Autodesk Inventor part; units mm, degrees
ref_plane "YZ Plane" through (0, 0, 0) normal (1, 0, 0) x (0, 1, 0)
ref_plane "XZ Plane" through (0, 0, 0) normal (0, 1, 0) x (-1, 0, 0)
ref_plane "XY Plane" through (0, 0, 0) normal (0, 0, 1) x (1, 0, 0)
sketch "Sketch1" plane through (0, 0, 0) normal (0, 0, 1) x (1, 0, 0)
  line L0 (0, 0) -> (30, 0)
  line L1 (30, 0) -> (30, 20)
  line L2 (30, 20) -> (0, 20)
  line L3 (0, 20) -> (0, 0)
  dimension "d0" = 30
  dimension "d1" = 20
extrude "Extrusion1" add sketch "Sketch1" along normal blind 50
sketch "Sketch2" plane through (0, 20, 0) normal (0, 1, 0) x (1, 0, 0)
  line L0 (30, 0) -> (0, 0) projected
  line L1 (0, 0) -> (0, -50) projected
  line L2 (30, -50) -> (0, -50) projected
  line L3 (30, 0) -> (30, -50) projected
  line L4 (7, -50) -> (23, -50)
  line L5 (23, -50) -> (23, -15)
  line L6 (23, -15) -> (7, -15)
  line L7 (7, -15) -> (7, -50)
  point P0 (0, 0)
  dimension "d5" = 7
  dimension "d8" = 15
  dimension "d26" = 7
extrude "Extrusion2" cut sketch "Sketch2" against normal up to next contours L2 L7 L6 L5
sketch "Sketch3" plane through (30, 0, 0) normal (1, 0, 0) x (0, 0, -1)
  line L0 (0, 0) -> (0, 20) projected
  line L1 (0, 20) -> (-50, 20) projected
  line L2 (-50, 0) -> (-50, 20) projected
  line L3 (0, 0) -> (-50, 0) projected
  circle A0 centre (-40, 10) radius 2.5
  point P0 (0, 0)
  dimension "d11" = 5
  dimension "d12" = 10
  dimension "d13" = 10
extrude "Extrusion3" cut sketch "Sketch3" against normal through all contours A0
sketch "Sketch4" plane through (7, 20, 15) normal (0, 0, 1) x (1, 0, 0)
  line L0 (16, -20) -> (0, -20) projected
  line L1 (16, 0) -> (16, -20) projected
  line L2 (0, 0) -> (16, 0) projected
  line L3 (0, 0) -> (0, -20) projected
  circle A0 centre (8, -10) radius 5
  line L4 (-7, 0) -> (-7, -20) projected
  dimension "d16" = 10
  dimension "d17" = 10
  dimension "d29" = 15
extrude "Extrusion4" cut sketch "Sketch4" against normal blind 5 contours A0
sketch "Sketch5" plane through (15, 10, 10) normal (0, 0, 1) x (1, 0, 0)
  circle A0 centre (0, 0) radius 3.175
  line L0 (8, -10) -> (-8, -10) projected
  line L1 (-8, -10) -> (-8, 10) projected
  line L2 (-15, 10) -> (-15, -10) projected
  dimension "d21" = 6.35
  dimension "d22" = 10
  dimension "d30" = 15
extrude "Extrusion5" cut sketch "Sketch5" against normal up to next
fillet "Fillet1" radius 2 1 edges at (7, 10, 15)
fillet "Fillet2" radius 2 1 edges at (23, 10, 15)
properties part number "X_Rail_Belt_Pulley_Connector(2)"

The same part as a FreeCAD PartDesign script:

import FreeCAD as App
import Part
import Sketcher

V = App.Vector


def edges_at(feature, points):
    """Names of the edges that pass closest to the given points."""
    edges = feature.Shape.Edges
    near = lambda p: min(range(len(edges)), key=lambda i: edges[i].distToShape(Part.Vertex(*p))[0])
    return sorted({f"Edge{near(p) + 1}" for p in points})


def add_polygon(sketch, points):
    """Adds a closed chain of lines whose ends are joined by coincident constraints."""
    first, n = sketch.GeometryCount, len(points)
    for a, b in zip(points, points[1:] + points[:1]):
        sketch.addGeometry(Part.LineSegment(App.Vector(*a, 0), App.Vector(*b, 0)), False)
    for i in range(n):
        sketch.addConstraint(Sketcher.Constraint("Coincident", first + i, 2, first + (i + 1) % n, 1))

doc = App.newDocument("Part")
params = doc.addObject("Spreadsheet::Sheet", "Params")
for row, (alias, value) in enumerate([
    ("sketch1_width", "30 mm"),
    ("sketch1_height", "20 mm"),
    ("pad1_length", "50 mm"),
    ("sketch2_width", "16 mm"),
    ("sketch2_height", "35 mm"),
    ("sketch3_diameter", "5 mm"),
    ("sketch4_diameter", "10 mm"),
    ("pocket3_length", "5 mm"),
    ("sketch5_diameter", "6.35 mm"),
    ("fillet_radius", "2 mm"),
    ("fillet2_radius", "2 mm"),
], start=1):
    params.set(f"A{row}", alias)
    params.set(f"B{row}", "=" + value)
    params.setAlias(f"B{row}", alias)

body = doc.addObject("PartDesign::Body", "Body")

# Sketch on XY plane
sketch1 = body.newObject("Sketcher::SketchObject", "Sketch")
sketch1.AttachmentSupport = (doc.getObject("XY_Plane"), [""])
sketch1.MapMode = "FlatFace"
add_polygon(sketch1, [(0, 20), (0, 0), (30, 0), (30, 20)])  # lines 0-3
sketch1.addConstraint([
    Sketcher.Constraint("Vertical", 0),
    Sketcher.Constraint("Horizontal", 1),
    Sketcher.Constraint("Vertical", 2),
    Sketcher.Constraint("Horizontal", 3),
    Sketcher.Constraint("Coincident", 0, 2, -1, 1),
    Sketcher.Constraint("DistanceX", 1, 1, 1, 2, 30.0),
    Sketcher.Constraint("DistanceY", 0, 2, 0, 1, 20.0),
])
sketch1.setExpression("Constraints[9]", "Params.sketch1_width")
sketch1.setExpression("Constraints[10]", "Params.sketch1_height")
pad1 = body.newObject("PartDesign::Pad", "Pad")
pad1.Profile = sketch1
pad1.setExpression("Length", "Params.pad1_length")

# Sketch on XZ plane
sketch2 = body.newObject("Sketcher::SketchObject", "Sketch001")
sketch2.AttachmentSupport = (doc.getObject("XZ_Plane"), [""])
sketch2.MapMode = "FlatFace"
sketch2.AttachmentOffset = App.Placement(V(0, 0, -20), App.Rotation())
add_polygon(sketch2, [(7, 50), (23, 50), (23, 15), (7, 15)])  # lines 0-3
sketch2.addConstraint([
    Sketcher.Constraint("Horizontal", 0),
    Sketcher.Constraint("Vertical", 1),
    Sketcher.Constraint("Horizontal", 2),
    Sketcher.Constraint("Vertical", 3),
    Sketcher.Constraint("DistanceY", -1, 1, 1, 2, 15.0),
    Sketcher.Constraint("DistanceX", -1, 1, 2, 2, 7.0),
    Sketcher.Constraint("DistanceX", 0, 1, 0, 2, 16.0),
    Sketcher.Constraint("DistanceY", 1, 2, 1, 1, 35.0),
])
sketch2.setExpression("Constraints[10]", "Params.sketch2_width")
sketch2.setExpression("Constraints[11]", "Params.sketch2_height")
pocket1 = body.newObject("PartDesign::Pocket", "Pocket")
pocket1.Profile = sketch2
pocket1.Type = "UpToFirst"
pocket1.Reversed = True

# Sketch on YZ plane
sketch3 = body.newObject("Sketcher::SketchObject", "Sketch002")
sketch3.AttachmentSupport = (doc.getObject("YZ_Plane"), [""])
sketch3.MapMode = "FlatFace"
sketch3.AttachmentOffset = App.Placement(V(0, 0, 30), App.Rotation())
sketch3.addGeometry(Part.Circle(V(10, 40, 0), V(0, 0, 1), 2.5), False)
sketch3.addConstraint([
    Sketcher.Constraint("Diameter", 0, 5.0),
    Sketcher.Constraint("DistanceX", -1, 1, 0, 3, 10.0),
    Sketcher.Constraint("DistanceY", -1, 1, 0, 3, 40.0),
])
sketch3.setExpression("Constraints[0]", "Params.sketch3_diameter")
pocket2 = body.newObject("PartDesign::Pocket", "Pocket001")
pocket2.Profile = sketch3
pocket2.Type = "ThroughAll"

# Sketch on XY plane
sketch4 = body.newObject("Sketcher::SketchObject", "Sketch003")
sketch4.AttachmentSupport = (doc.getObject("XY_Plane"), [""])
sketch4.MapMode = "FlatFace"
sketch4.AttachmentOffset = App.Placement(V(0, 0, 15), App.Rotation())
sketch4.addGeometry(Part.Circle(V(15, 10, 0), V(0, 0, 1), 5), False)
sketch4.addConstraint([
    Sketcher.Constraint("Diameter", 0, 10.0),
    Sketcher.Constraint("DistanceX", -1, 1, 0, 3, 15.0),
    Sketcher.Constraint("DistanceY", -1, 1, 0, 3, 10.0),
])
sketch4.setExpression("Constraints[0]", "Params.sketch4_diameter")
pocket3 = body.newObject("PartDesign::Pocket", "Pocket002")
pocket3.Profile = sketch4
pocket3.setExpression("Length", "Params.pocket3_length")

# Sketch on XY plane
sketch5 = body.newObject("Sketcher::SketchObject", "Sketch004")
sketch5.AttachmentSupport = (doc.getObject("XY_Plane"), [""])
sketch5.MapMode = "FlatFace"
sketch5.AttachmentOffset = App.Placement(V(0, 0, 10), App.Rotation())
sketch5.addGeometry(Part.Circle(V(15, 10, 0), V(0, 0, 1), 3.2), False)
sketch5.addConstraint([
    Sketcher.Constraint("Diameter", 0, 6.35),
    Sketcher.Constraint("DistanceX", -1, 1, 0, 3, 15.0),
    Sketcher.Constraint("DistanceY", -1, 1, 0, 3, 10.0),
])
sketch5.setExpression("Constraints[0]", "Params.sketch5_diameter")
pocket4 = body.newObject("PartDesign::Pocket", "Pocket003")
pocket4.Profile = sketch5
pocket4.Type = "UpToFirst"
doc.recompute()

fillet = body.newObject("PartDesign::Fillet", "Fillet")
fillet.Base = (pocket4, edges_at(pocket4, [(7, 10, 15)]))
fillet.setExpression("Radius", "Params.fillet_radius")
doc.recompute()

fillet2 = body.newObject("PartDesign::Fillet", "Fillet001")
fillet2.Base = (fillet, edges_at(fillet, [(23, 10, 15)]))
fillet2.setExpression("Radius", "Params.fillet2_radius")

doc.recompute()
